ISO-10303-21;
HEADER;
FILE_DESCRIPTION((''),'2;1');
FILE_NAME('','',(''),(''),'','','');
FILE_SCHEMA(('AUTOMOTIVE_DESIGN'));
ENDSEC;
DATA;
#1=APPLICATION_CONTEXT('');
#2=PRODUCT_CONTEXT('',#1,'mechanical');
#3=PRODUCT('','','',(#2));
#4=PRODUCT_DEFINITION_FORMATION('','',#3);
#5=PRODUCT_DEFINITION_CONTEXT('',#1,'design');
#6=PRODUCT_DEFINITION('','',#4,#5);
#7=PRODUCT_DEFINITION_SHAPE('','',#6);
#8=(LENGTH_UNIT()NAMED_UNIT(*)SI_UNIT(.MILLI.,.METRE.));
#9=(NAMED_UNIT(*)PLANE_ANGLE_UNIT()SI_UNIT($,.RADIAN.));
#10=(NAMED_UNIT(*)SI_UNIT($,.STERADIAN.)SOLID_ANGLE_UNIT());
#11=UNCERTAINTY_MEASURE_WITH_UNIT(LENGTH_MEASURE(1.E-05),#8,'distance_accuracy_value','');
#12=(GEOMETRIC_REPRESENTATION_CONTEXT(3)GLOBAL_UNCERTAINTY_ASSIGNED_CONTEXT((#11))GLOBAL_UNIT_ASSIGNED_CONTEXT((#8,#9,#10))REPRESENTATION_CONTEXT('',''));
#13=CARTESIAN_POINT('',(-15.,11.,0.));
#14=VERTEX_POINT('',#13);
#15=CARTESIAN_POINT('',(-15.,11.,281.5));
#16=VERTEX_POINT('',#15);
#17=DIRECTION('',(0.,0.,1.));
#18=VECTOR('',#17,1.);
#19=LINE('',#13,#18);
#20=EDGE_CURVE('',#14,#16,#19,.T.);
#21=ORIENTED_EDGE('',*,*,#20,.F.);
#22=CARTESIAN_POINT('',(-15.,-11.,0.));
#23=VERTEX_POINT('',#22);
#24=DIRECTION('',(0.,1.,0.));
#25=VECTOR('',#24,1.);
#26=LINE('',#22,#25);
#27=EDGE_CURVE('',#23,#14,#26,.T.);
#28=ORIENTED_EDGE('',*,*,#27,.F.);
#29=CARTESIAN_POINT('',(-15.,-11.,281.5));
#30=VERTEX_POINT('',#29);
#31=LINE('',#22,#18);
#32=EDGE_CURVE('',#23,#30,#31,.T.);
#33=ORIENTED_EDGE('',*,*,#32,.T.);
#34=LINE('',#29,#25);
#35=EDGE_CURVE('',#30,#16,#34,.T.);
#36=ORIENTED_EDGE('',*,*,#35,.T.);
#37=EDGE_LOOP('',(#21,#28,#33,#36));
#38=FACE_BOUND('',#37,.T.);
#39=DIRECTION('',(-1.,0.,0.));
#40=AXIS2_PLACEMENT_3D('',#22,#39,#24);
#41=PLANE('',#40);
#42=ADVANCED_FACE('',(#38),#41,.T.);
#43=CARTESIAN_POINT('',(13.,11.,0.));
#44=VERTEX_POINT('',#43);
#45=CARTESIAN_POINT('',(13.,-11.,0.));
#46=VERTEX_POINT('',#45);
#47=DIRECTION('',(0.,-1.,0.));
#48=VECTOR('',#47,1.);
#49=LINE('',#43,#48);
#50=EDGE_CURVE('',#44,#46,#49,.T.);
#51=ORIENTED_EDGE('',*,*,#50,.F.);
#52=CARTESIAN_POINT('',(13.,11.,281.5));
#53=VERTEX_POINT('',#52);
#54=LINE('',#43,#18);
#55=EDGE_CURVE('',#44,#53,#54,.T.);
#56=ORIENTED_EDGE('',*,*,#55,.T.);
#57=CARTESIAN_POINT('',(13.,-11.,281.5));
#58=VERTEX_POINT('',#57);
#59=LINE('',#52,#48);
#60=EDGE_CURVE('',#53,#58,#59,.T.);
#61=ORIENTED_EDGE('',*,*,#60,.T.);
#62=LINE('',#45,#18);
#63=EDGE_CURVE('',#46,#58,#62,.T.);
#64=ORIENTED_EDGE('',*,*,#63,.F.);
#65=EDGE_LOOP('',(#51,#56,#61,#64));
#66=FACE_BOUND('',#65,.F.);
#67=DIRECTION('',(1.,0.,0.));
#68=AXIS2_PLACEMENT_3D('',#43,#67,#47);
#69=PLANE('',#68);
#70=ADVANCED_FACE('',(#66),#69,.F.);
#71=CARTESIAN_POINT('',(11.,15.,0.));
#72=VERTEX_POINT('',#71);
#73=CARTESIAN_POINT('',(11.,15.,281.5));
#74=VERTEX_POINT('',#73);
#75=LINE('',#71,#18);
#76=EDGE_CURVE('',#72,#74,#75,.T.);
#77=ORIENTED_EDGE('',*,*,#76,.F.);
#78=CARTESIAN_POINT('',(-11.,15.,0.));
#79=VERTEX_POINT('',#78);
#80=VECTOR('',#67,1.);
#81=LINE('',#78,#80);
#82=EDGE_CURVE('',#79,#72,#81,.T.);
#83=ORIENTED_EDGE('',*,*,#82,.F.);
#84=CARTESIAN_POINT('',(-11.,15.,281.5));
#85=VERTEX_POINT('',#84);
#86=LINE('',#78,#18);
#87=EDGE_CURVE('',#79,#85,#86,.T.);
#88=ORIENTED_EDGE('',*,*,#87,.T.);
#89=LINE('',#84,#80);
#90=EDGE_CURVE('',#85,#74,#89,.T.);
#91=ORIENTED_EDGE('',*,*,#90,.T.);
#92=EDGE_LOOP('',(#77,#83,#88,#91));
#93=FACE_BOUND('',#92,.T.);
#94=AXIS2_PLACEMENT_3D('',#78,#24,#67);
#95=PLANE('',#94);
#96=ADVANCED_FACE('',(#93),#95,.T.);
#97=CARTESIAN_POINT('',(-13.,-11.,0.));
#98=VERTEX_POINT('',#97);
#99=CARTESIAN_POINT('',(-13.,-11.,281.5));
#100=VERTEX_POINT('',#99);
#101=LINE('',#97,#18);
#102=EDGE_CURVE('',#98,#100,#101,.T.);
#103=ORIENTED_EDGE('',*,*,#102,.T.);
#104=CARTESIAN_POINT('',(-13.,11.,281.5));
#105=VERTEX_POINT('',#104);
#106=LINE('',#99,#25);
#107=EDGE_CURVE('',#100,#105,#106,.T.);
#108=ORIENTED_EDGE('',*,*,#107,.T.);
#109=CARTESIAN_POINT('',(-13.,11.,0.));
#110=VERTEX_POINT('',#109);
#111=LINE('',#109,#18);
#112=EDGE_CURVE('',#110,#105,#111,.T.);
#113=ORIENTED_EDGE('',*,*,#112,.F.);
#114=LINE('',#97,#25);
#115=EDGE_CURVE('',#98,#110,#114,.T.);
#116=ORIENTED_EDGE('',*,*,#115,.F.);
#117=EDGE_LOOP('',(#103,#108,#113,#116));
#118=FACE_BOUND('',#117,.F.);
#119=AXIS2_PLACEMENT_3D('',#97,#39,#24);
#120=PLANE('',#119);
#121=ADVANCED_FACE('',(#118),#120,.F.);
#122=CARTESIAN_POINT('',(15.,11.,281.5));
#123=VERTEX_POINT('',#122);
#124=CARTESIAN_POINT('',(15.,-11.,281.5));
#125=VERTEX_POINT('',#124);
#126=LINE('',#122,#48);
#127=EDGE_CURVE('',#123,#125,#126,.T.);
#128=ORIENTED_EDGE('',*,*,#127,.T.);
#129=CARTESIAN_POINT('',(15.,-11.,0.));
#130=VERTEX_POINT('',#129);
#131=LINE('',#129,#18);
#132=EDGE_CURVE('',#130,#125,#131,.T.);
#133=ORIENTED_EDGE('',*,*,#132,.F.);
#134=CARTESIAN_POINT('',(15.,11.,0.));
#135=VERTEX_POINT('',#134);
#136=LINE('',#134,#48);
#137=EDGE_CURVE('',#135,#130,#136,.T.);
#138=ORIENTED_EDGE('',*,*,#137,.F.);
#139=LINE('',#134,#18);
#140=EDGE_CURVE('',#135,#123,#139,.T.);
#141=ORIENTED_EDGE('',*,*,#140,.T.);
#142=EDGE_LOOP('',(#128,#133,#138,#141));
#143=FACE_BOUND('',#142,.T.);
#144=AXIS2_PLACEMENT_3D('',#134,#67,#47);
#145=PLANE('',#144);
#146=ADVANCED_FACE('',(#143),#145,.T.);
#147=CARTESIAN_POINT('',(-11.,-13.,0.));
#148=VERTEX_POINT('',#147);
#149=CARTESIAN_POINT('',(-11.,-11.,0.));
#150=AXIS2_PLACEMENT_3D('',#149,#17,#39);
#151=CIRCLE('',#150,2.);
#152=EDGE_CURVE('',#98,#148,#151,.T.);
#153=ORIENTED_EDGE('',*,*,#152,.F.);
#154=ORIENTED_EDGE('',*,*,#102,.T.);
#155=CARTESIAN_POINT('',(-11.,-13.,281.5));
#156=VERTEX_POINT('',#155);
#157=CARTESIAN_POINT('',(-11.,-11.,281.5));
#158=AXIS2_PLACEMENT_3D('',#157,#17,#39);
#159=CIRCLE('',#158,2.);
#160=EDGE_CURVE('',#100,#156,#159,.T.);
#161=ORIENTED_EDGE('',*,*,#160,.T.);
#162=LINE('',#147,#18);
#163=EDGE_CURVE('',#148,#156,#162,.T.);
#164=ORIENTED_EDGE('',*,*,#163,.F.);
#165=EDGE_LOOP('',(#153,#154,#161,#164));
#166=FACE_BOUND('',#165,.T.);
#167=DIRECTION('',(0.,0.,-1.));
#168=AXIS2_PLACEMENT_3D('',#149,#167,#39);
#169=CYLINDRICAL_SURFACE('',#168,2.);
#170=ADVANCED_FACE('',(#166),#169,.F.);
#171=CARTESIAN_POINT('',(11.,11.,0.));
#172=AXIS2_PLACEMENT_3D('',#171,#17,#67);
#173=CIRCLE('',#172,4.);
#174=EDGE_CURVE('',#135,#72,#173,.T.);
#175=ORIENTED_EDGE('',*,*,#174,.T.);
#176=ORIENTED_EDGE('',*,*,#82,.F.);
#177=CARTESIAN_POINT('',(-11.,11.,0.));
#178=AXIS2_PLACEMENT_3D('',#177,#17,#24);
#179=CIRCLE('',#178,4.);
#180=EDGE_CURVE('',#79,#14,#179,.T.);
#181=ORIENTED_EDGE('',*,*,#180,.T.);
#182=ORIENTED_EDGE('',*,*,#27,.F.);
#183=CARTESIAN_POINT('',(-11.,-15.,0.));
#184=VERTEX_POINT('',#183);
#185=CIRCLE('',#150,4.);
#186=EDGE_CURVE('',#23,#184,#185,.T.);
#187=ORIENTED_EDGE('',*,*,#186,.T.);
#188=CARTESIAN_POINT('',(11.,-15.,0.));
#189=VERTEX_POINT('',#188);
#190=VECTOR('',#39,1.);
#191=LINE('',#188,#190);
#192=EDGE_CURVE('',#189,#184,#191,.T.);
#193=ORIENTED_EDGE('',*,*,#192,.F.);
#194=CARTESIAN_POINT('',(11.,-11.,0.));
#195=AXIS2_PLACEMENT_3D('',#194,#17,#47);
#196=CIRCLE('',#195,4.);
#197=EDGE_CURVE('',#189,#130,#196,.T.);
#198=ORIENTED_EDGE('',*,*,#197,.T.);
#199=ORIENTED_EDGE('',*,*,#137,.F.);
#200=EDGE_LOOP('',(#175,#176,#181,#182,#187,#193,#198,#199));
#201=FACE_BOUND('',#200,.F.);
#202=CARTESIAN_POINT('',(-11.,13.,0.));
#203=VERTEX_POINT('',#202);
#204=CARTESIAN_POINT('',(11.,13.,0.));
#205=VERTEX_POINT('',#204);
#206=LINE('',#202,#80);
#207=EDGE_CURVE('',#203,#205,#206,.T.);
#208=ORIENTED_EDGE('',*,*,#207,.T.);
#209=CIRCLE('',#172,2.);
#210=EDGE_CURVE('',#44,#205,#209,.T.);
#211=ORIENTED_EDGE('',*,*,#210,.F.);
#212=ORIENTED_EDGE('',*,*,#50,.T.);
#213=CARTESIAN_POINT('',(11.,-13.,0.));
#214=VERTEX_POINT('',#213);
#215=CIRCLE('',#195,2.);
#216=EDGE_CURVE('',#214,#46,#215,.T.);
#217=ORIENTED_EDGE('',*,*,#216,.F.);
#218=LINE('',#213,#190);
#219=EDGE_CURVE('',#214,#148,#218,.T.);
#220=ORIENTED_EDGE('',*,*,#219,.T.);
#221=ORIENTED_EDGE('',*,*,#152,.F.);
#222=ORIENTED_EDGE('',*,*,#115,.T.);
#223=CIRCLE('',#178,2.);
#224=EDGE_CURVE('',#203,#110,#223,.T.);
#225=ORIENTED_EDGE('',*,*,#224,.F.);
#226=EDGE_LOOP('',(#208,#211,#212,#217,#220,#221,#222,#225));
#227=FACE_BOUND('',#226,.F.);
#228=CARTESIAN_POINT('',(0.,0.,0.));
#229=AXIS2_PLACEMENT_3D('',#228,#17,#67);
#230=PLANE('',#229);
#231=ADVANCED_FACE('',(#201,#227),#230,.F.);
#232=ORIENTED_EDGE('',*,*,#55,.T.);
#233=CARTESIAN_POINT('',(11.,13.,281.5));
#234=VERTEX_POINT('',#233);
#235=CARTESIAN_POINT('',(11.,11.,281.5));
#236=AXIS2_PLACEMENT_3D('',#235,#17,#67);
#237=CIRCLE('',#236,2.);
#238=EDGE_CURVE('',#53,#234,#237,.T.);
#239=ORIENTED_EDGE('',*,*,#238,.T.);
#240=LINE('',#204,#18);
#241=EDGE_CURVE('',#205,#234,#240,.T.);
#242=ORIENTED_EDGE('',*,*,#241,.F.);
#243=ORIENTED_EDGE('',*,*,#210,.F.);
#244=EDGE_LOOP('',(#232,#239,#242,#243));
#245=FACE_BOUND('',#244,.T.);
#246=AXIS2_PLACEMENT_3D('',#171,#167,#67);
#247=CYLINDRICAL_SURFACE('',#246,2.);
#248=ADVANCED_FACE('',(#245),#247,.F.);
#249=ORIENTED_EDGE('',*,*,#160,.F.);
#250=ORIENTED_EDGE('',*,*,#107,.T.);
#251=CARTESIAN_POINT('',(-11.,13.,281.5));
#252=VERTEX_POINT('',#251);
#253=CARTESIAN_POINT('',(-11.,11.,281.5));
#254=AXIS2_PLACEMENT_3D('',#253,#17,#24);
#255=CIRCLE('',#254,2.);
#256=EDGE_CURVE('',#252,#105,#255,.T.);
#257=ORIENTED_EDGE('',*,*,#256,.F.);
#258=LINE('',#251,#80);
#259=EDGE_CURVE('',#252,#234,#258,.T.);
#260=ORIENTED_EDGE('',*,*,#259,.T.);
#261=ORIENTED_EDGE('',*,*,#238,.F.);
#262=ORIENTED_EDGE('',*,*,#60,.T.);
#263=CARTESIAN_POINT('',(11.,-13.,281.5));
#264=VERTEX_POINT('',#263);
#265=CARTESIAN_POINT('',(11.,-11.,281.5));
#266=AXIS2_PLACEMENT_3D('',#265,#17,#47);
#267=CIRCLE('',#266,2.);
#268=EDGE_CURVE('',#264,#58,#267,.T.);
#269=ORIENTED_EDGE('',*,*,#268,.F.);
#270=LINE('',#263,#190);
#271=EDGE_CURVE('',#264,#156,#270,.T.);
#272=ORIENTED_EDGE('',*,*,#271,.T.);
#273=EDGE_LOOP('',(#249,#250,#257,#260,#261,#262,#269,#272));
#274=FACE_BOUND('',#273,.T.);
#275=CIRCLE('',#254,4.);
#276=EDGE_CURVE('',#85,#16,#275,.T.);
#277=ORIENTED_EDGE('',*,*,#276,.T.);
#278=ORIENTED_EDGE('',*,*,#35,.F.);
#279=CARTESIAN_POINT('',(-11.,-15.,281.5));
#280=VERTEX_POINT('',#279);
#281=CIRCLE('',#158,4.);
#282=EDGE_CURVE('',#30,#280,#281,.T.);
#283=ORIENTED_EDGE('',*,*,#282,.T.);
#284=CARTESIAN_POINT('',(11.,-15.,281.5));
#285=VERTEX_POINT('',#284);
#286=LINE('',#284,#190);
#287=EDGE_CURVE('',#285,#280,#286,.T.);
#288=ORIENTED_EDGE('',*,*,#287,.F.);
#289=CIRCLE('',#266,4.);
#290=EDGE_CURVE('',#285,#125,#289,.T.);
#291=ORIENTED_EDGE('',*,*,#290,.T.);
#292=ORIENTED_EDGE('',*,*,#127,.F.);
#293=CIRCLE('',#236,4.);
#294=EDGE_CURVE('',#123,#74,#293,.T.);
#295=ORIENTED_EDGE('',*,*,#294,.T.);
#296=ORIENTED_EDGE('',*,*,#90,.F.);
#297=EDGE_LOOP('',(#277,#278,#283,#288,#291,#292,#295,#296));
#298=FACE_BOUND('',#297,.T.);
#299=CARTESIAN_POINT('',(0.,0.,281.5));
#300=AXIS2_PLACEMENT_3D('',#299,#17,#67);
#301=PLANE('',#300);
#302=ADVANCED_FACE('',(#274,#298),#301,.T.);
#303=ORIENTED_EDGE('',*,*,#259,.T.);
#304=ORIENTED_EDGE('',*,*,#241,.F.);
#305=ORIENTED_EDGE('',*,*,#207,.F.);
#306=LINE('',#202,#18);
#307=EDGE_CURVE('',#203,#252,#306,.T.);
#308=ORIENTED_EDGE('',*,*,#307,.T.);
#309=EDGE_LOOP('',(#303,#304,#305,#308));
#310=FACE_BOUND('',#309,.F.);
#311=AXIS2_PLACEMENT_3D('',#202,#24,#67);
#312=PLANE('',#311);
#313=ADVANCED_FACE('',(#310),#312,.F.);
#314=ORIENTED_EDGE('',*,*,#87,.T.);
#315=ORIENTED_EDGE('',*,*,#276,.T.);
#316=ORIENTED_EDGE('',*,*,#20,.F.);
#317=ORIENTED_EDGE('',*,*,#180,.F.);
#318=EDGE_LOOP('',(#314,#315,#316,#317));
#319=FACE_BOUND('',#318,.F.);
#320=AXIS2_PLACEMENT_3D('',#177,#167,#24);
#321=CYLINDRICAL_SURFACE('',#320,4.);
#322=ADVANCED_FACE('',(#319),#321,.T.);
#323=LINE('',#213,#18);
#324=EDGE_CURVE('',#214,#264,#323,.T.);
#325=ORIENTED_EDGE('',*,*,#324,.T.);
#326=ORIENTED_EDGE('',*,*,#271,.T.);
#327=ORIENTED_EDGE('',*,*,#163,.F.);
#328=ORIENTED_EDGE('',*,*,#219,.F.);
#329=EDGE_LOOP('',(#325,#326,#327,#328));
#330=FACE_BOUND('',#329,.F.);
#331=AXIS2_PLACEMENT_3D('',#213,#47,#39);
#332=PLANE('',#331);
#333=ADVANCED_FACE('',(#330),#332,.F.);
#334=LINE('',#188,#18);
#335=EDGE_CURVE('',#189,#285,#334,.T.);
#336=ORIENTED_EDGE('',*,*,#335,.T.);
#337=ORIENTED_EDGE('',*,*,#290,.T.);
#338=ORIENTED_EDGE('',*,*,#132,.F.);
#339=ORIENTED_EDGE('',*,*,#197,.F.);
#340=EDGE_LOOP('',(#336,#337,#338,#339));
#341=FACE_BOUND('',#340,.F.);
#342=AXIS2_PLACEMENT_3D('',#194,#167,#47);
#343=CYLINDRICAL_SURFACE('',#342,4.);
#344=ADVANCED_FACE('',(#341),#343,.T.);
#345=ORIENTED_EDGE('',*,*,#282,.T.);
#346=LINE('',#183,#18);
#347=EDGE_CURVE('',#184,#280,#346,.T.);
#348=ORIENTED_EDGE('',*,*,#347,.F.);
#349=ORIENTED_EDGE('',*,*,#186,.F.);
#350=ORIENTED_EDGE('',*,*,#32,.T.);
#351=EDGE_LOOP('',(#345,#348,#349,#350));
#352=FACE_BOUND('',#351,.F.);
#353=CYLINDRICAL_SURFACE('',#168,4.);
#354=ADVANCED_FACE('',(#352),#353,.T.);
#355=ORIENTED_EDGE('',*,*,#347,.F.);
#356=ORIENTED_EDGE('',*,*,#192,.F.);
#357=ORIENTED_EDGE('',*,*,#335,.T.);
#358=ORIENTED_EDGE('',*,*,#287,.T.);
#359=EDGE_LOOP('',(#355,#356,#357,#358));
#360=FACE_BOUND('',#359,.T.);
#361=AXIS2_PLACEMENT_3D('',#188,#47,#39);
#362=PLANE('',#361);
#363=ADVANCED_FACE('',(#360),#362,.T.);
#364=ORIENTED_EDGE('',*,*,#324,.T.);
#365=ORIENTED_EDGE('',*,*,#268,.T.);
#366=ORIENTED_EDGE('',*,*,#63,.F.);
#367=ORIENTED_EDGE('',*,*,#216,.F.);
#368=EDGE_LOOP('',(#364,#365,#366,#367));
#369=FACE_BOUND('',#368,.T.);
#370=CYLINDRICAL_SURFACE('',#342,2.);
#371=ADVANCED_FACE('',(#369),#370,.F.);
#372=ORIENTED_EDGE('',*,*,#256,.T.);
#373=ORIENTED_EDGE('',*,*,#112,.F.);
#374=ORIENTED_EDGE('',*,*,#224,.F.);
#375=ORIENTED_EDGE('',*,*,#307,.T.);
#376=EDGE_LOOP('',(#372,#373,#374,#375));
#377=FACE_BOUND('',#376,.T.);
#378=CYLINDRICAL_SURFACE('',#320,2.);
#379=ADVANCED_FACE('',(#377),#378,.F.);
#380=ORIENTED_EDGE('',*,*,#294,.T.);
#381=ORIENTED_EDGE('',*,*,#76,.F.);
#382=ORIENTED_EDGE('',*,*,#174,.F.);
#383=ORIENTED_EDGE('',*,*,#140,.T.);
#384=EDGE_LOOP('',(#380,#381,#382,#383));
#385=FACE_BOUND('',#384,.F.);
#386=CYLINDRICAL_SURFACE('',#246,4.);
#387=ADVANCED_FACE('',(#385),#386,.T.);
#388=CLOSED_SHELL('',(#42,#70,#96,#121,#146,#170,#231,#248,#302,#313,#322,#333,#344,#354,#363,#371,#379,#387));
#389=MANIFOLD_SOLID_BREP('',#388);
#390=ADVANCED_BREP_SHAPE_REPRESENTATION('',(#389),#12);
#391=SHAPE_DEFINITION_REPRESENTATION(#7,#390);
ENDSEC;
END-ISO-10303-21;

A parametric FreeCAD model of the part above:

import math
import FreeCAD as App
import Part
import Sketcher

doc = App.newDocument("Part")
body = doc.addObject("PartDesign::Body", "Body")

sketch1 = body.newObject("Sketcher::SketchObject", "Sketch")
sketch1.AttachmentSupport = (doc.getObject("XY_Plane"), [""])
sketch1.MapMode = "FlatFace"
sketch1.addGeometry(Part.LineSegment(App.Vector(-15, 11, 0), App.Vector(-15, -11, 0)), False)
sketch1.addGeometry(Part.ArcOfCircle(Part.Circle(App.Vector(-11, -11, 0), App.Vector(0, 0, 1), 4), math.radians(180), math.radians(270)), False)
sketch1.addGeometry(Part.LineSegment(App.Vector(-11, -15, 0), App.Vector(11, -15, 0)), False)
sketch1.addGeometry(Part.ArcOfCircle(Part.Circle(App.Vector(11, -11, 0), App.Vector(0, 0, 1), 4), math.radians(-90), math.radians(0)), False)
sketch1.addGeometry(Part.LineSegment(App.Vector(15, -11, 0), App.Vector(15, 11, 0)), False)
sketch1.addGeometry(Part.ArcOfCircle(Part.Circle(App.Vector(11, 11, 0), App.Vector(0, 0, 1), 4), math.radians(0), math.radians(90)), False)
sketch1.addGeometry(Part.LineSegment(App.Vector(11, 15, 0), App.Vector(-11, 15, 0)), False)
sketch1.addGeometry(Part.ArcOfCircle(Part.Circle(App.Vector(-11, 11, 0), App.Vector(0, 0, 1), 4), math.radians(90), math.radians(180)), False)
sketch1.addGeometry(Part.ArcOfCircle(Part.Circle(App.Vector(-11, 11, 0), App.Vector(0, 0, 1), 2), math.radians(90), math.radians(180)), False)
sketch1.addGeometry(Part.LineSegment(App.Vector(-11, 13, 0), App.Vector(11, 13, 0)), False)
sketch1.addGeometry(Part.ArcOfCircle(Part.Circle(App.Vector(11, 11, 0), App.Vector(0, 0, 1), 2), math.radians(0), math.radians(90)), False)
sketch1.addGeometry(Part.LineSegment(App.Vector(13, 11, 0), App.Vector(13, -11, 0)), False)
sketch1.addGeometry(Part.ArcOfCircle(Part.Circle(App.Vector(11, -11, 0), App.Vector(0, 0, 1), 2), math.radians(-90), math.radians(0)), False)
sketch1.addGeometry(Part.LineSegment(App.Vector(11, -13, 0), App.Vector(-11, -13, 0)), False)
sketch1.addGeometry(Part.ArcOfCircle(Part.Circle(App.Vector(-11, -11, 0), App.Vector(0, 0, 1), 2), math.radians(180), math.radians(270)), False)
sketch1.addGeometry(Part.LineSegment(App.Vector(-13, -11, 0), App.Vector(-13, 11, 0)), False)
sketch1.addConstraint(Sketcher.Constraint("Tangent", 0, 2, 1, 1))
sketch1.addConstraint(Sketcher.Constraint("Tangent", 1, 2, 2, 1))
sketch1.addConstraint(Sketcher.Constraint("Tangent", 2, 2, 3, 1))
sketch1.addConstraint(Sketcher.Constraint("Tangent", 3, 2, 4, 1))
sketch1.addConstraint(Sketcher.Constraint("Tangent", 4, 2, 5, 1))
sketch1.addConstraint(Sketcher.Constraint("Tangent", 5, 2, 6, 1))
sketch1.addConstraint(Sketcher.Constraint("Tangent", 6, 2, 7, 1))
sketch1.addConstraint(Sketcher.Constraint("Tangent", 7, 2, 0, 1))
sketch1.addConstraint(Sketcher.Constraint("Tangent", 8, 1, 9, 1))
sketch1.addConstraint(Sketcher.Constraint("Tangent", 9, 2, 10, 2))
sketch1.addConstraint(Sketcher.Constraint("Tangent", 10, 1, 11, 1))
sketch1.addConstraint(Sketcher.Constraint("Tangent", 11, 2, 12, 2))
sketch1.addConstraint(Sketcher.Constraint("Tangent", 12, 1, 13, 1))
sketch1.addConstraint(Sketcher.Constraint("Tangent", 13, 2, 14, 2))
sketch1.addConstraint(Sketcher.Constraint("Tangent", 14, 1, 15, 1))
sketch1.addConstraint(Sketcher.Constraint("Tangent", 15, 2, 8, 2))
sketch1.addConstraint(Sketcher.Constraint("Vertical", 0))
sketch1.addConstraint(Sketcher.Constraint("Horizontal", 2))
sketch1.addConstraint(Sketcher.Constraint("Vertical", 4))
sketch1.addConstraint(Sketcher.Constraint("Horizontal", 6))
sketch1.addConstraint(Sketcher.Constraint("Horizontal", 9))
sketch1.addConstraint(Sketcher.Constraint("Vertical", 11))
sketch1.addConstraint(Sketcher.Constraint("Horizontal", 13))
sketch1.addConstraint(Sketcher.Constraint("Vertical", 15))
sketch1.addConstraint(Sketcher.Constraint("Coincident", 8, 3, 7, 3))
sketch1.addConstraint(Sketcher.Constraint("Coincident", 10, 3, 5, 3))
sketch1.addConstraint(Sketcher.Constraint("Coincident", 12, 3, 3, 3))
sketch1.addConstraint(Sketcher.Constraint("Equal", 1, 3))
sketch1.addConstraint(Sketcher.Constraint("Equal", 3, 5))
sketch1.addConstraint(Sketcher.Constraint("Equal", 5, 7))
sketch1.addConstraint(Sketcher.Constraint("Equal", 12, 14))
sketch1.addConstraint(Sketcher.Constraint("Symmetric", 1, 3, 5, 3, -1, 1))
sketch1.addConstraint(Sketcher.Constraint("Equal", 13, 0))
sketch1.addConstraint(Sketcher.Constraint("Radius", 1, 4.0))
sketch1.addConstraint(Sketcher.Constraint("Radius", 8, 2.0))
sketch1.addConstraint(Sketcher.Constraint("DistanceX", 0, 2, -1, 1, 15.0))
pad1 = body.newObject("PartDesign::Pad", "Pad")
pad1.Profile = sketch1
pad1.Length = 281.5

doc.recompute()
